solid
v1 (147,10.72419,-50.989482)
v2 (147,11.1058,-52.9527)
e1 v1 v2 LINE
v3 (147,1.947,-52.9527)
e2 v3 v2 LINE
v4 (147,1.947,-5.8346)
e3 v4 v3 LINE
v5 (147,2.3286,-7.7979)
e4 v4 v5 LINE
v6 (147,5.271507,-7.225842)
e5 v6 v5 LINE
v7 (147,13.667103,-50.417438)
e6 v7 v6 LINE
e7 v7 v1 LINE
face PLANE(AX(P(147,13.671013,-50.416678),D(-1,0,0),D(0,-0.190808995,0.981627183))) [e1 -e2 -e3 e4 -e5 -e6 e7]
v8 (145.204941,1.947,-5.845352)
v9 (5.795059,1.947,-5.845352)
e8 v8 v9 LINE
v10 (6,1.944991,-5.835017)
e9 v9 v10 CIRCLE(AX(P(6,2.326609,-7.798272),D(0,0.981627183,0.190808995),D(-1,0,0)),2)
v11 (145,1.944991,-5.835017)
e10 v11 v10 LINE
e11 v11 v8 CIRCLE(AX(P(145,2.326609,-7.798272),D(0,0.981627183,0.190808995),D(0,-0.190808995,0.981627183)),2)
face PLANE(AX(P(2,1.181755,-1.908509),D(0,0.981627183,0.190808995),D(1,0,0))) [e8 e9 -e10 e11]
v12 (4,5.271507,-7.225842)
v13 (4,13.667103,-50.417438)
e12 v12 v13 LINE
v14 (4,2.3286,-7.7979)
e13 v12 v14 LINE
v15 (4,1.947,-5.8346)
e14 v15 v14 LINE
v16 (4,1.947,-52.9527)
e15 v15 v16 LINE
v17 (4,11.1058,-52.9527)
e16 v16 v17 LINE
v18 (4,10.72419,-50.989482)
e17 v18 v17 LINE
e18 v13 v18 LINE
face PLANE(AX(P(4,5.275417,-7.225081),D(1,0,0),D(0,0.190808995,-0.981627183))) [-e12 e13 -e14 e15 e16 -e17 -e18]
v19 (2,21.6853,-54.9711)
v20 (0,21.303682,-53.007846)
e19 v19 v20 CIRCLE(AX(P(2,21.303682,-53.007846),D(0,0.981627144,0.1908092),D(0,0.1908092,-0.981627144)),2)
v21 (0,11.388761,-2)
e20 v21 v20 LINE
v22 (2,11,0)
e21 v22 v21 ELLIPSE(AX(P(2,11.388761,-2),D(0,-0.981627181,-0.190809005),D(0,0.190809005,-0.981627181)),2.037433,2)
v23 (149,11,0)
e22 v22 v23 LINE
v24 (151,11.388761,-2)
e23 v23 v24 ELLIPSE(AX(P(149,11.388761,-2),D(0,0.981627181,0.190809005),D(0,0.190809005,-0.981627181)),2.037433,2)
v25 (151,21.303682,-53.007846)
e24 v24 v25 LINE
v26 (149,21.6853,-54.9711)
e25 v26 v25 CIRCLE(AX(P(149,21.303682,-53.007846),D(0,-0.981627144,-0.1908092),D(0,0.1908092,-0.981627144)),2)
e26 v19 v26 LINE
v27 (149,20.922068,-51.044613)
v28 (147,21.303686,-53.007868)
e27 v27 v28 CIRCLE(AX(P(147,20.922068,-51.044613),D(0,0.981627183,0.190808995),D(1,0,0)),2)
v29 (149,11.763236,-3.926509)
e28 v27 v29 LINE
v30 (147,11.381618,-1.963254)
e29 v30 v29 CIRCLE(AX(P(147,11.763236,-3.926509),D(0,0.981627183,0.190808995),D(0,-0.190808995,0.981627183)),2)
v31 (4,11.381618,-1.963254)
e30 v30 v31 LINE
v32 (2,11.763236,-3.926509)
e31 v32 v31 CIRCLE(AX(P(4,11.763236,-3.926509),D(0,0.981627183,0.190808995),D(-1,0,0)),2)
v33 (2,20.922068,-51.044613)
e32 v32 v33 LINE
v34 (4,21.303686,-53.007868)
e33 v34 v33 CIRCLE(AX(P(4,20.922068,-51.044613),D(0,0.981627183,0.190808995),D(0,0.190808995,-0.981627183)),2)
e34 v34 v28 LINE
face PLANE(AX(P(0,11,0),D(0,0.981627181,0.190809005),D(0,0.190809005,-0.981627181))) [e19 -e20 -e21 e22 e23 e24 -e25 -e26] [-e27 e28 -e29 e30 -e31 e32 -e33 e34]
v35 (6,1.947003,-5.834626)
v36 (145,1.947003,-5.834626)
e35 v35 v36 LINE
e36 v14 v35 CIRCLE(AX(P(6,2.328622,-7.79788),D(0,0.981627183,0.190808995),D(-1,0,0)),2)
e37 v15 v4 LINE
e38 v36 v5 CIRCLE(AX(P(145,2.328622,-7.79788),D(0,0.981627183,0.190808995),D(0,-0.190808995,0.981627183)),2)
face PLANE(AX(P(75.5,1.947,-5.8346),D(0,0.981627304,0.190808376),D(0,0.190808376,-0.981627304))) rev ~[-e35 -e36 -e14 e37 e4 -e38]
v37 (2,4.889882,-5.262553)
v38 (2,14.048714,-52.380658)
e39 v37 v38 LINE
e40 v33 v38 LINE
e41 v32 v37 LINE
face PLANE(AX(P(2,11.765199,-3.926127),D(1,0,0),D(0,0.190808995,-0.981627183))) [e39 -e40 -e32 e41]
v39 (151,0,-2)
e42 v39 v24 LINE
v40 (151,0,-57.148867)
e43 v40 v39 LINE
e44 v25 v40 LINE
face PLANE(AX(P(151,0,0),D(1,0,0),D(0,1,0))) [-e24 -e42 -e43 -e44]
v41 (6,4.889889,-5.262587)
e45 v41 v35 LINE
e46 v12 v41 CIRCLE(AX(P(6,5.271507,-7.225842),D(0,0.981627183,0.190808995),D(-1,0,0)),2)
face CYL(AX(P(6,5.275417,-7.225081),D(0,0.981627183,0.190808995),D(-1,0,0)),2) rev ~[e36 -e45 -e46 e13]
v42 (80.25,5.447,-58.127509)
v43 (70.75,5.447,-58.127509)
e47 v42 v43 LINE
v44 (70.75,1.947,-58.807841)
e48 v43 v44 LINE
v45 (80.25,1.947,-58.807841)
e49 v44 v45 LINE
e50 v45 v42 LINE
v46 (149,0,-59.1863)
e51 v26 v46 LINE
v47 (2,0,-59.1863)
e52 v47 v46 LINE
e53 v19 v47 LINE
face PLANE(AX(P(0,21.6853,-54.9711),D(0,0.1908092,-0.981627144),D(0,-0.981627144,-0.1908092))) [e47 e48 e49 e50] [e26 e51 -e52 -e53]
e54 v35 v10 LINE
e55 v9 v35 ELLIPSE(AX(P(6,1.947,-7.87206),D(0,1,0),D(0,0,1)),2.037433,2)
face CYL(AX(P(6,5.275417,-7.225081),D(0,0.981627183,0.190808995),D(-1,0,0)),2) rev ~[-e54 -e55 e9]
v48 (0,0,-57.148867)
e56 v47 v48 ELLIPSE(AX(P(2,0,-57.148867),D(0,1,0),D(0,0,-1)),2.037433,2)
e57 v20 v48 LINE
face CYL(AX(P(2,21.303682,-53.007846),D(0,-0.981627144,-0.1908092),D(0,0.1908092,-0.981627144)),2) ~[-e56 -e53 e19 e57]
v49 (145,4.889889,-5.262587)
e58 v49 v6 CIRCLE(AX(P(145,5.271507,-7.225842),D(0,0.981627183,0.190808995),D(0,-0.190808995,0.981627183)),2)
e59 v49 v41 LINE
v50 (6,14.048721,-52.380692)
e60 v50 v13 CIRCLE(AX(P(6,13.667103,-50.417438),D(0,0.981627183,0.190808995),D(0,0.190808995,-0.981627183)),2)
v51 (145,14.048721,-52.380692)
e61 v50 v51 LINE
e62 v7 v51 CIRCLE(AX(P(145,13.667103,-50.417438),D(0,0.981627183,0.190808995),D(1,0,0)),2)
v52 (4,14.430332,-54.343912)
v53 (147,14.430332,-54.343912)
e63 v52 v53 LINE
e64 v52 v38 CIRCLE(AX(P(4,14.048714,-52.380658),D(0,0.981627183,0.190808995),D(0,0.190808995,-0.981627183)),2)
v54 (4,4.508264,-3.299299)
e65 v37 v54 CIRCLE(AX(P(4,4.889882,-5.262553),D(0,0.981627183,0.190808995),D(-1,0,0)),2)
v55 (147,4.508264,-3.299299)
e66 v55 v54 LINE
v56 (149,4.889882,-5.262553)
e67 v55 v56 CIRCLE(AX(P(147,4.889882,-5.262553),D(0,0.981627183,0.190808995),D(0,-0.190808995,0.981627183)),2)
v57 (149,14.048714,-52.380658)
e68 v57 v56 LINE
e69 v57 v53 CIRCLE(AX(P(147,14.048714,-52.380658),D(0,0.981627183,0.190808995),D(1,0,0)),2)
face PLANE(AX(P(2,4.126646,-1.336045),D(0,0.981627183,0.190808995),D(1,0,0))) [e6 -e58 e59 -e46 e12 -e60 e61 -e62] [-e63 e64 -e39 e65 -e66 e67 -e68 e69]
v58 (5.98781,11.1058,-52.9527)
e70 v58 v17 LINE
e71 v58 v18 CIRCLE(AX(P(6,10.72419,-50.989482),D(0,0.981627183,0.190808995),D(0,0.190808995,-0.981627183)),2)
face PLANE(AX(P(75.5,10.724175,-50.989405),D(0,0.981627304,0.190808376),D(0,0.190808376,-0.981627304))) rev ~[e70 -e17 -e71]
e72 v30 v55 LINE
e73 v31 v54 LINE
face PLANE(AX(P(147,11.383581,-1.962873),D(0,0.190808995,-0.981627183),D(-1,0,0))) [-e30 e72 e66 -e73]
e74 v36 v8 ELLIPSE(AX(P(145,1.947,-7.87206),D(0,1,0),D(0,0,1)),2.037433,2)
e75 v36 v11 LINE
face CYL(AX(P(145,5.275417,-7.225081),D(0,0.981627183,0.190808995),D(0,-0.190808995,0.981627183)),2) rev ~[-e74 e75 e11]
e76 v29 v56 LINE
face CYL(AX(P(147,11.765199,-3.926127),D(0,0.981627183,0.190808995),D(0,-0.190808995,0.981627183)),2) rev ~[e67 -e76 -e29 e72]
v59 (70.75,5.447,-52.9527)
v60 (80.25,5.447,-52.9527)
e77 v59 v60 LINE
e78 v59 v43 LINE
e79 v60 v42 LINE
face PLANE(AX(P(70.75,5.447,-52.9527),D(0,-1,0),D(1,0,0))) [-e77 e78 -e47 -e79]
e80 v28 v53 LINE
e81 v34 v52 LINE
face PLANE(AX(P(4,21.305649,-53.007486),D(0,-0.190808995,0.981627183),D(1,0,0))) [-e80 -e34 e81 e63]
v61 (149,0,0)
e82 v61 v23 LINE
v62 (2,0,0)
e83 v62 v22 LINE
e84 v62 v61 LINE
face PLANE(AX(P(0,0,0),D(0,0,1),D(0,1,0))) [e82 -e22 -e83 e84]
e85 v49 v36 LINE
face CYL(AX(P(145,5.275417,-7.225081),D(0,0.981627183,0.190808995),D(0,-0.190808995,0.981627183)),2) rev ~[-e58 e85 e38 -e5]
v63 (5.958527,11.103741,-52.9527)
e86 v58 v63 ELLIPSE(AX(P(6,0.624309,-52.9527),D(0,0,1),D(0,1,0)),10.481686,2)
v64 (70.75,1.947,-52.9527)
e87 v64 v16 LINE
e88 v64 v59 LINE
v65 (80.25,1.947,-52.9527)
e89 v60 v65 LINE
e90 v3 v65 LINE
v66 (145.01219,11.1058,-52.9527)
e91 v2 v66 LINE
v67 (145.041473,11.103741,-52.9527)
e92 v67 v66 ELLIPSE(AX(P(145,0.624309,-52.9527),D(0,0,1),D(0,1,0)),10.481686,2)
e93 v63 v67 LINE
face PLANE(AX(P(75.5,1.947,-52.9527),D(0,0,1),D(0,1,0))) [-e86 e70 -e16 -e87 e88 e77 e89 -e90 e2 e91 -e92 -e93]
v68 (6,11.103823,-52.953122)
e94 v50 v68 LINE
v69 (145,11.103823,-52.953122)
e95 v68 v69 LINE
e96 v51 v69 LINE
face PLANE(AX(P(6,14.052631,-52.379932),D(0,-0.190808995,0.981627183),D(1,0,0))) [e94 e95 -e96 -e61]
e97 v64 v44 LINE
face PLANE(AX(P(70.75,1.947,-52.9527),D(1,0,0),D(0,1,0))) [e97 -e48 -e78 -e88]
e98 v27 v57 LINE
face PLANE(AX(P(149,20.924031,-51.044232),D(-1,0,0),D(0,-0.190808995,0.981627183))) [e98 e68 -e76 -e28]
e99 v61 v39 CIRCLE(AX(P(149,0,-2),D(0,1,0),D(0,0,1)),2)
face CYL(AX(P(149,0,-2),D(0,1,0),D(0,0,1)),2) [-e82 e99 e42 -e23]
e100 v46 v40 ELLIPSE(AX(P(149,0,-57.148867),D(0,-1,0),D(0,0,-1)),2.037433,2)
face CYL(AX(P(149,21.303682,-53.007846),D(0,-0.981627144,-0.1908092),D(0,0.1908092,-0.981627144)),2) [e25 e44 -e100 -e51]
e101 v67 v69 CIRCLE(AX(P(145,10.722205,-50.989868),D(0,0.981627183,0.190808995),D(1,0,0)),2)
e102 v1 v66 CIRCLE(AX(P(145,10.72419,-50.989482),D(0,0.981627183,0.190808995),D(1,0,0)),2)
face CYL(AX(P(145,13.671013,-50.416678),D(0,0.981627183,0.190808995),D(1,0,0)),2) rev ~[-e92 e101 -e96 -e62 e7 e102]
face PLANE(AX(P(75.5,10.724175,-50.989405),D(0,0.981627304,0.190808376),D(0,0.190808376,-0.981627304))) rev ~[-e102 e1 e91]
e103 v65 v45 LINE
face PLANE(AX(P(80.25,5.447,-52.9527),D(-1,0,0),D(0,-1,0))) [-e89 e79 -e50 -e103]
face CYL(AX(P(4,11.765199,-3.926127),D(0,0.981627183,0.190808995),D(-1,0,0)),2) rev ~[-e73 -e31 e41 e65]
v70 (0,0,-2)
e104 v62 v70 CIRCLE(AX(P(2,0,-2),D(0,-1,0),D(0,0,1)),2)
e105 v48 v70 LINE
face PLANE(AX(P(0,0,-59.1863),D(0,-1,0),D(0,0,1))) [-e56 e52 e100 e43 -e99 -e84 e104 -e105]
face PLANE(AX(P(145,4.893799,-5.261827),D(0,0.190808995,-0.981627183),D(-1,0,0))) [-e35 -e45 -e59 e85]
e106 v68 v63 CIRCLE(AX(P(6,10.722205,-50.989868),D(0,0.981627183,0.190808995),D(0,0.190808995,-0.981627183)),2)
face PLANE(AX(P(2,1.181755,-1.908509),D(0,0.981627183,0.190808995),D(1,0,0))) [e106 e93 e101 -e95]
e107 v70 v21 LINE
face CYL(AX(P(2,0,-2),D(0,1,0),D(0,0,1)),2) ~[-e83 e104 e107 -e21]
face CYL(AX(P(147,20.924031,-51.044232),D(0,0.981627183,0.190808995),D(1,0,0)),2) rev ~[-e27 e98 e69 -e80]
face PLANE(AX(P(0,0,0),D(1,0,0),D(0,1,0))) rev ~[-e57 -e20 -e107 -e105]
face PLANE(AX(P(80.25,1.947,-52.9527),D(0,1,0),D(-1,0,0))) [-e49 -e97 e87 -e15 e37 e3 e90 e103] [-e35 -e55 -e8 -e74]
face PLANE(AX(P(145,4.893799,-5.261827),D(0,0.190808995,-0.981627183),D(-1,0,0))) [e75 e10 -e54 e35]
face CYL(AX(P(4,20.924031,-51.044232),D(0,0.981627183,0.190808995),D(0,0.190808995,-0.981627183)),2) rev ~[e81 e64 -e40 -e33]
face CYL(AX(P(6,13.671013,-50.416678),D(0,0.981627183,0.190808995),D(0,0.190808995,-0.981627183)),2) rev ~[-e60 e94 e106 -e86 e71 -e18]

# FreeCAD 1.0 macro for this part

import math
import FreeCAD as App
import Part
import Sketcher
from FreeCAD import Vector
Q = App.Units.Quantity


def edges_at(feature, points):
    """Names of the edges that pass closest to the given points."""
    edges = feature.Shape.Edges
    near = lambda p: min(range(len(edges)), key=lambda i: edges[i].distToShape(Part.Vertex(*p))[0])
    return sorted({f"Edge{near(p) + 1}" for p in points})


def add_polygon(sketch, points):
    """Adds a closed chain of lines whose ends are joined by coincident constraints."""
    first, n = sketch.GeometryCount, len(points)
    for a, b in zip(points, points[1:] + points[:1]):
        sketch.addGeometry(Part.LineSegment(App.Vector(*a, 0), App.Vector(*b, 0)), False)
    for i in range(n):
        sketch.addConstraint(Sketcher.Constraint("Coincident", first + i, 2, first + (i + 1) % n, 1))

doc = App.newDocument("Part")
body = doc.addObject("PartDesign::Body", "Body")

sketch1 = body.newObject("Sketcher::SketchObject", "Sketch")
sketch1.AttachmentSupport = (doc.getObject("YZ_Plane"), [""])
sketch1.MapMode = "FlatFace"
add_polygon(sketch1, [(11, 0), (0, 0), (0, -59.1863), (21.6853, -54.9711)])
sketch1.addConstraint([
    Sketcher.Constraint("Horizontal", 0),
    Sketcher.Constraint("Vertical", 1),
    Sketcher.Constraint("Coincident", 0, 2, -1, 1),
    Sketcher.Constraint("Perpendicular", 2, 3),
    Sketcher.Constraint("DistanceX", 0, 2, 0, 1, 11.0),
    Sketcher.Constraint("Angle", 2, Q("11 deg")),
    Sketcher.Constraint("Distance", 3, 56.0),
])
pad1 = body.newObject("PartDesign::Pad", "Pad")
pad1.Profile = sketch1
pad1.Length = 151
doc.recompute()

fillet = body.newObject("PartDesign::Fillet", "Fillet")
fillet.Base = (pad1, edges_at(pad1, [
    (151, 10.843, -57.079),
    (151, 5.5, 0),
    (0, 10.843, -57.079),
    (0, 5.5, 0),
]))
fillet.Radius = 2

sketch2 = body.newObject("Sketcher::SketchObject", "Sketch001")
sketch2.Placement = App.Placement(Vector(2, 11, 0), App.Rotation(Vector(1, 0, 0), Vector(0, 0.190808995, -0.981627183), Vector(0, 0.981627183, 0.190808995), "ZXY"))
sketch2.addGeometry([
    Part.LineSegment(Vector(145, 54, 0), Vector(2, 54, 0)),
    Part.ArcOfCircle(Part.Circle(Vector(2, 52, 0), Vector(0, 0, 1), 2), math.radians(90), math.radians(180)),
    Part.LineSegment(Vector(0, 52, 0), Vector(0, 4, 0)),
    Part.ArcOfCircle(Part.Circle(Vector(2, 4, 0), Vector(0, 0, 1), 2), math.radians(180), math.radians(270)),
    Part.LineSegment(Vector(2, 2, 0), Vector(145, 2, 0)),
    Part.ArcOfCircle(Part.Circle(Vector(145, 4, 0), Vector(0, 0, 1), 2), math.radians(-90), math.radians(0)),
    Part.LineSegment(Vector(147, 4, 0), Vector(147, 52, 0)),
    Part.ArcOfCircle(Part.Circle(Vector(145, 52, 0), Vector(0, 0, 1), 2), math.radians(0), math.radians(90)),
], False)
sketch2.addConstraint([
    Sketcher.Constraint("Tangent", 0, 2, 1, 1),
    Sketcher.Constraint("Tangent", 1, 2, 2, 1),
    Sketcher.Constraint("Tangent", 2, 2, 3, 1),
    Sketcher.Constraint("Tangent", 3, 2, 4, 1),
    Sketcher.Constraint("Tangent", 4, 2, 5, 1),
    Sketcher.Constraint("Tangent", 5, 2, 6, 1),
    Sketcher.Constraint("Tangent", 6, 2, 7, 1),
    Sketcher.Constraint("Tangent", 7, 2, 0, 1),
    Sketcher.Constraint("Horizontal", 0),
    Sketcher.Constraint("Vertical", 2),
    Sketcher.Constraint("Horizontal", 4),
    Sketcher.Constraint("Vertical", 6),
    Sketcher.Constraint("Equal", 1, 3),
    Sketcher.Constraint("Equal", 3, 5),
    Sketcher.Constraint("Equal", 5, 7),
    Sketcher.Constraint("PointOnObject", 1, 2, -2),
    Sketcher.Constraint("Radius", 1, 2.0),
    Sketcher.Constraint("DistanceY", -1, 1, 3, 2, 2.0),
    Sketcher.Constraint("DistanceX", 0, 2, 0, 1, 143.0),
    Sketcher.Constraint("DistanceY", 2, 2, 2, 1, 48.0),
])
pocket1 = body.newObject("PartDesign::Pocket", "Pocket")
pocket1.Profile = sketch2
pocket1.Length = 7

sketch3 = body.newObject("Sketcher::SketchObject", "Sketch002")
sketch3.Placement = App.Placement(Vector(2, 4.1286, -1.3357), App.Rotation(Vector(1, 0, 0), Vector(0, 0.190808995, -0.981627183), Vector(0, 0.981627183, 0.190808995), "ZXY"))
sketch3.addGeometry([
    Part.LineSegment(Vector(143, 52, 0), Vector(4, 52, 0)),
    Part.ArcOfCircle(Part.Circle(Vector(4, 50, 0), Vector(0, 0, 1), 2), math.radians(90), math.radians(180)),
    Part.LineSegment(Vector(2, 50, 0), Vector(2, 6, 0)),
    Part.ArcOfCircle(Part.Circle(Vector(4, 6, 0), Vector(0, 0, 1), 2), math.radians(180), math.radians(270)),
    Part.LineSegment(Vector(4, 4, 0), Vector(143, 4, 0)),
    Part.ArcOfCircle(Part.Circle(Vector(143, 6, 0), Vector(0, 0, 1), 2), math.radians(-90), math.radians(0)),
    Part.LineSegment(Vector(145, 6, 0), Vector(145, 50, 0)),
    Part.ArcOfCircle(Part.Circle(Vector(143, 50, 0), Vector(0, 0, 1), 2), math.radians(0), math.radians(90)),
], False)
sketch3.addConstraint([
    Sketcher.Constraint("Tangent", 0, 2, 1, 1),
    Sketcher.Constraint("Tangent", 1, 2, 2, 1),
    Sketcher.Constraint("Tangent", 2, 2, 3, 1),
    Sketcher.Constraint("Tangent", 3, 2, 4, 1),
    Sketcher.Constraint("Tangent", 4, 2, 5, 1),
    Sketcher.Constraint("Tangent", 5, 2, 6, 1),
    Sketcher.Constraint("Tangent", 6, 2, 7, 1),
    Sketcher.Constraint("Tangent", 7, 2, 0, 1),
    Sketcher.Constraint("Horizontal", 0),
    Sketcher.Constraint("Vertical", 2),
    Sketcher.Constraint("Horizontal", 4),
    Sketcher.Constraint("Vertical", 6),
    Sketcher.Constraint("Equal", 1, 3),
    Sketcher.Constraint("Equal", 3, 5),
    Sketcher.Constraint("Equal", 5, 7),
    Sketcher.Constraint("Radius", 1, 2.0),
    Sketcher.Constraint("DistanceX", -1, 1, 1, 2, 2.0),
    Sketcher.Constraint("DistanceX", 0, 2, 0, 1, 139.0),
    Sketcher.Constraint("DistanceY", 2, 2, 2, 1, 44.0),
    Sketcher.Constraint("DistanceY", -1, 1, 1, 3, 50.0),
])
pocket2 = body.newObject("PartDesign::Pocket", "Pocket001")
pocket2.Profile = sketch3
pocket2.Length = 3

sketch4 = body.newObject("Sketcher::SketchObject", "Sketch003")
sketch4.AttachmentSupport = (doc.getObject("YZ_Plane"), [""])
sketch4.MapMode = "FlatFace"
sketch4.AttachmentOffset = App.Placement(Vector(0, 0, 75.5), App.Rotation())
add_polygon(sketch4, [(11.1058, -52.9527), (10.7242, -50.9894), (2.328625, -7.797895), (1.947, -5.8346), (1.947, -52.9527)])
sketch4.addConstraint([
    Sketcher.Constraint("Vertical", 3),
    Sketcher.Constraint("Horizontal", 4),
    Sketcher.Constraint("Parallel", 0, 1),
    Sketcher.Constraint("Parallel", 1, 2),
    Sketcher.Constraint("Equal", 0, 2),
    Sketcher.Constraint("Angle", 0, Q("101 deg")),
    Sketcher.Constraint("Distance", 0, 2.0),
    Sketcher.Constraint("Distance", 1, 44.0),
    Sketcher.Constraint("DistanceY", 1, 2, -1, 1, 7.798),
    Sketcher.Constraint("DistanceX", -1, 1, 2, 2, 1.947),
])
pocket3 = body.newObject("PartDesign::Pocket", "Pocket002")
pocket3.Profile = sketch4
pocket3.Length = 143
pocket3.Midplane = True

sketch5 = body.newObject("Sketcher::SketchObject", "Sketch004")
sketch5.AttachmentSupport = (doc.getObject("XY_Plane"), [""])
sketch5.MapMode = "FlatFace"
sketch5.AttachmentOffset = App.Placement(Vector(0, 0, -52.9527), App.Rotation())
add_polygon(sketch5, [(70.75, 5.447), (70.75, 1.947), (80.25, 1.947), (80.25, 5.447)])
sketch5.addConstraint([
    Sketcher.Constraint("Vertical", 0),
    Sketcher.Constraint("Horizontal", 1),
    Sketcher.Constraint("Vertical", 2),
    Sketcher.Constraint("Horizontal", 3),
    Sketcher.Constraint("DistanceX", 1, 1, 1, 2, 9.5),
    Sketcher.Constraint("DistanceY", 0, 2, 0, 1, 3.5),
    Sketcher.Constraint("DistanceX", -1, 1, 0, 2, 70.75),
    Sketcher.Constraint("DistanceY", -1, 1, 0, 2, 1.947),
])
pocket4 = body.newObject("PartDesign::Pocket", "Pocket003")
pocket4.Profile = sketch5
pocket4.Length = 10

doc.recompute()
